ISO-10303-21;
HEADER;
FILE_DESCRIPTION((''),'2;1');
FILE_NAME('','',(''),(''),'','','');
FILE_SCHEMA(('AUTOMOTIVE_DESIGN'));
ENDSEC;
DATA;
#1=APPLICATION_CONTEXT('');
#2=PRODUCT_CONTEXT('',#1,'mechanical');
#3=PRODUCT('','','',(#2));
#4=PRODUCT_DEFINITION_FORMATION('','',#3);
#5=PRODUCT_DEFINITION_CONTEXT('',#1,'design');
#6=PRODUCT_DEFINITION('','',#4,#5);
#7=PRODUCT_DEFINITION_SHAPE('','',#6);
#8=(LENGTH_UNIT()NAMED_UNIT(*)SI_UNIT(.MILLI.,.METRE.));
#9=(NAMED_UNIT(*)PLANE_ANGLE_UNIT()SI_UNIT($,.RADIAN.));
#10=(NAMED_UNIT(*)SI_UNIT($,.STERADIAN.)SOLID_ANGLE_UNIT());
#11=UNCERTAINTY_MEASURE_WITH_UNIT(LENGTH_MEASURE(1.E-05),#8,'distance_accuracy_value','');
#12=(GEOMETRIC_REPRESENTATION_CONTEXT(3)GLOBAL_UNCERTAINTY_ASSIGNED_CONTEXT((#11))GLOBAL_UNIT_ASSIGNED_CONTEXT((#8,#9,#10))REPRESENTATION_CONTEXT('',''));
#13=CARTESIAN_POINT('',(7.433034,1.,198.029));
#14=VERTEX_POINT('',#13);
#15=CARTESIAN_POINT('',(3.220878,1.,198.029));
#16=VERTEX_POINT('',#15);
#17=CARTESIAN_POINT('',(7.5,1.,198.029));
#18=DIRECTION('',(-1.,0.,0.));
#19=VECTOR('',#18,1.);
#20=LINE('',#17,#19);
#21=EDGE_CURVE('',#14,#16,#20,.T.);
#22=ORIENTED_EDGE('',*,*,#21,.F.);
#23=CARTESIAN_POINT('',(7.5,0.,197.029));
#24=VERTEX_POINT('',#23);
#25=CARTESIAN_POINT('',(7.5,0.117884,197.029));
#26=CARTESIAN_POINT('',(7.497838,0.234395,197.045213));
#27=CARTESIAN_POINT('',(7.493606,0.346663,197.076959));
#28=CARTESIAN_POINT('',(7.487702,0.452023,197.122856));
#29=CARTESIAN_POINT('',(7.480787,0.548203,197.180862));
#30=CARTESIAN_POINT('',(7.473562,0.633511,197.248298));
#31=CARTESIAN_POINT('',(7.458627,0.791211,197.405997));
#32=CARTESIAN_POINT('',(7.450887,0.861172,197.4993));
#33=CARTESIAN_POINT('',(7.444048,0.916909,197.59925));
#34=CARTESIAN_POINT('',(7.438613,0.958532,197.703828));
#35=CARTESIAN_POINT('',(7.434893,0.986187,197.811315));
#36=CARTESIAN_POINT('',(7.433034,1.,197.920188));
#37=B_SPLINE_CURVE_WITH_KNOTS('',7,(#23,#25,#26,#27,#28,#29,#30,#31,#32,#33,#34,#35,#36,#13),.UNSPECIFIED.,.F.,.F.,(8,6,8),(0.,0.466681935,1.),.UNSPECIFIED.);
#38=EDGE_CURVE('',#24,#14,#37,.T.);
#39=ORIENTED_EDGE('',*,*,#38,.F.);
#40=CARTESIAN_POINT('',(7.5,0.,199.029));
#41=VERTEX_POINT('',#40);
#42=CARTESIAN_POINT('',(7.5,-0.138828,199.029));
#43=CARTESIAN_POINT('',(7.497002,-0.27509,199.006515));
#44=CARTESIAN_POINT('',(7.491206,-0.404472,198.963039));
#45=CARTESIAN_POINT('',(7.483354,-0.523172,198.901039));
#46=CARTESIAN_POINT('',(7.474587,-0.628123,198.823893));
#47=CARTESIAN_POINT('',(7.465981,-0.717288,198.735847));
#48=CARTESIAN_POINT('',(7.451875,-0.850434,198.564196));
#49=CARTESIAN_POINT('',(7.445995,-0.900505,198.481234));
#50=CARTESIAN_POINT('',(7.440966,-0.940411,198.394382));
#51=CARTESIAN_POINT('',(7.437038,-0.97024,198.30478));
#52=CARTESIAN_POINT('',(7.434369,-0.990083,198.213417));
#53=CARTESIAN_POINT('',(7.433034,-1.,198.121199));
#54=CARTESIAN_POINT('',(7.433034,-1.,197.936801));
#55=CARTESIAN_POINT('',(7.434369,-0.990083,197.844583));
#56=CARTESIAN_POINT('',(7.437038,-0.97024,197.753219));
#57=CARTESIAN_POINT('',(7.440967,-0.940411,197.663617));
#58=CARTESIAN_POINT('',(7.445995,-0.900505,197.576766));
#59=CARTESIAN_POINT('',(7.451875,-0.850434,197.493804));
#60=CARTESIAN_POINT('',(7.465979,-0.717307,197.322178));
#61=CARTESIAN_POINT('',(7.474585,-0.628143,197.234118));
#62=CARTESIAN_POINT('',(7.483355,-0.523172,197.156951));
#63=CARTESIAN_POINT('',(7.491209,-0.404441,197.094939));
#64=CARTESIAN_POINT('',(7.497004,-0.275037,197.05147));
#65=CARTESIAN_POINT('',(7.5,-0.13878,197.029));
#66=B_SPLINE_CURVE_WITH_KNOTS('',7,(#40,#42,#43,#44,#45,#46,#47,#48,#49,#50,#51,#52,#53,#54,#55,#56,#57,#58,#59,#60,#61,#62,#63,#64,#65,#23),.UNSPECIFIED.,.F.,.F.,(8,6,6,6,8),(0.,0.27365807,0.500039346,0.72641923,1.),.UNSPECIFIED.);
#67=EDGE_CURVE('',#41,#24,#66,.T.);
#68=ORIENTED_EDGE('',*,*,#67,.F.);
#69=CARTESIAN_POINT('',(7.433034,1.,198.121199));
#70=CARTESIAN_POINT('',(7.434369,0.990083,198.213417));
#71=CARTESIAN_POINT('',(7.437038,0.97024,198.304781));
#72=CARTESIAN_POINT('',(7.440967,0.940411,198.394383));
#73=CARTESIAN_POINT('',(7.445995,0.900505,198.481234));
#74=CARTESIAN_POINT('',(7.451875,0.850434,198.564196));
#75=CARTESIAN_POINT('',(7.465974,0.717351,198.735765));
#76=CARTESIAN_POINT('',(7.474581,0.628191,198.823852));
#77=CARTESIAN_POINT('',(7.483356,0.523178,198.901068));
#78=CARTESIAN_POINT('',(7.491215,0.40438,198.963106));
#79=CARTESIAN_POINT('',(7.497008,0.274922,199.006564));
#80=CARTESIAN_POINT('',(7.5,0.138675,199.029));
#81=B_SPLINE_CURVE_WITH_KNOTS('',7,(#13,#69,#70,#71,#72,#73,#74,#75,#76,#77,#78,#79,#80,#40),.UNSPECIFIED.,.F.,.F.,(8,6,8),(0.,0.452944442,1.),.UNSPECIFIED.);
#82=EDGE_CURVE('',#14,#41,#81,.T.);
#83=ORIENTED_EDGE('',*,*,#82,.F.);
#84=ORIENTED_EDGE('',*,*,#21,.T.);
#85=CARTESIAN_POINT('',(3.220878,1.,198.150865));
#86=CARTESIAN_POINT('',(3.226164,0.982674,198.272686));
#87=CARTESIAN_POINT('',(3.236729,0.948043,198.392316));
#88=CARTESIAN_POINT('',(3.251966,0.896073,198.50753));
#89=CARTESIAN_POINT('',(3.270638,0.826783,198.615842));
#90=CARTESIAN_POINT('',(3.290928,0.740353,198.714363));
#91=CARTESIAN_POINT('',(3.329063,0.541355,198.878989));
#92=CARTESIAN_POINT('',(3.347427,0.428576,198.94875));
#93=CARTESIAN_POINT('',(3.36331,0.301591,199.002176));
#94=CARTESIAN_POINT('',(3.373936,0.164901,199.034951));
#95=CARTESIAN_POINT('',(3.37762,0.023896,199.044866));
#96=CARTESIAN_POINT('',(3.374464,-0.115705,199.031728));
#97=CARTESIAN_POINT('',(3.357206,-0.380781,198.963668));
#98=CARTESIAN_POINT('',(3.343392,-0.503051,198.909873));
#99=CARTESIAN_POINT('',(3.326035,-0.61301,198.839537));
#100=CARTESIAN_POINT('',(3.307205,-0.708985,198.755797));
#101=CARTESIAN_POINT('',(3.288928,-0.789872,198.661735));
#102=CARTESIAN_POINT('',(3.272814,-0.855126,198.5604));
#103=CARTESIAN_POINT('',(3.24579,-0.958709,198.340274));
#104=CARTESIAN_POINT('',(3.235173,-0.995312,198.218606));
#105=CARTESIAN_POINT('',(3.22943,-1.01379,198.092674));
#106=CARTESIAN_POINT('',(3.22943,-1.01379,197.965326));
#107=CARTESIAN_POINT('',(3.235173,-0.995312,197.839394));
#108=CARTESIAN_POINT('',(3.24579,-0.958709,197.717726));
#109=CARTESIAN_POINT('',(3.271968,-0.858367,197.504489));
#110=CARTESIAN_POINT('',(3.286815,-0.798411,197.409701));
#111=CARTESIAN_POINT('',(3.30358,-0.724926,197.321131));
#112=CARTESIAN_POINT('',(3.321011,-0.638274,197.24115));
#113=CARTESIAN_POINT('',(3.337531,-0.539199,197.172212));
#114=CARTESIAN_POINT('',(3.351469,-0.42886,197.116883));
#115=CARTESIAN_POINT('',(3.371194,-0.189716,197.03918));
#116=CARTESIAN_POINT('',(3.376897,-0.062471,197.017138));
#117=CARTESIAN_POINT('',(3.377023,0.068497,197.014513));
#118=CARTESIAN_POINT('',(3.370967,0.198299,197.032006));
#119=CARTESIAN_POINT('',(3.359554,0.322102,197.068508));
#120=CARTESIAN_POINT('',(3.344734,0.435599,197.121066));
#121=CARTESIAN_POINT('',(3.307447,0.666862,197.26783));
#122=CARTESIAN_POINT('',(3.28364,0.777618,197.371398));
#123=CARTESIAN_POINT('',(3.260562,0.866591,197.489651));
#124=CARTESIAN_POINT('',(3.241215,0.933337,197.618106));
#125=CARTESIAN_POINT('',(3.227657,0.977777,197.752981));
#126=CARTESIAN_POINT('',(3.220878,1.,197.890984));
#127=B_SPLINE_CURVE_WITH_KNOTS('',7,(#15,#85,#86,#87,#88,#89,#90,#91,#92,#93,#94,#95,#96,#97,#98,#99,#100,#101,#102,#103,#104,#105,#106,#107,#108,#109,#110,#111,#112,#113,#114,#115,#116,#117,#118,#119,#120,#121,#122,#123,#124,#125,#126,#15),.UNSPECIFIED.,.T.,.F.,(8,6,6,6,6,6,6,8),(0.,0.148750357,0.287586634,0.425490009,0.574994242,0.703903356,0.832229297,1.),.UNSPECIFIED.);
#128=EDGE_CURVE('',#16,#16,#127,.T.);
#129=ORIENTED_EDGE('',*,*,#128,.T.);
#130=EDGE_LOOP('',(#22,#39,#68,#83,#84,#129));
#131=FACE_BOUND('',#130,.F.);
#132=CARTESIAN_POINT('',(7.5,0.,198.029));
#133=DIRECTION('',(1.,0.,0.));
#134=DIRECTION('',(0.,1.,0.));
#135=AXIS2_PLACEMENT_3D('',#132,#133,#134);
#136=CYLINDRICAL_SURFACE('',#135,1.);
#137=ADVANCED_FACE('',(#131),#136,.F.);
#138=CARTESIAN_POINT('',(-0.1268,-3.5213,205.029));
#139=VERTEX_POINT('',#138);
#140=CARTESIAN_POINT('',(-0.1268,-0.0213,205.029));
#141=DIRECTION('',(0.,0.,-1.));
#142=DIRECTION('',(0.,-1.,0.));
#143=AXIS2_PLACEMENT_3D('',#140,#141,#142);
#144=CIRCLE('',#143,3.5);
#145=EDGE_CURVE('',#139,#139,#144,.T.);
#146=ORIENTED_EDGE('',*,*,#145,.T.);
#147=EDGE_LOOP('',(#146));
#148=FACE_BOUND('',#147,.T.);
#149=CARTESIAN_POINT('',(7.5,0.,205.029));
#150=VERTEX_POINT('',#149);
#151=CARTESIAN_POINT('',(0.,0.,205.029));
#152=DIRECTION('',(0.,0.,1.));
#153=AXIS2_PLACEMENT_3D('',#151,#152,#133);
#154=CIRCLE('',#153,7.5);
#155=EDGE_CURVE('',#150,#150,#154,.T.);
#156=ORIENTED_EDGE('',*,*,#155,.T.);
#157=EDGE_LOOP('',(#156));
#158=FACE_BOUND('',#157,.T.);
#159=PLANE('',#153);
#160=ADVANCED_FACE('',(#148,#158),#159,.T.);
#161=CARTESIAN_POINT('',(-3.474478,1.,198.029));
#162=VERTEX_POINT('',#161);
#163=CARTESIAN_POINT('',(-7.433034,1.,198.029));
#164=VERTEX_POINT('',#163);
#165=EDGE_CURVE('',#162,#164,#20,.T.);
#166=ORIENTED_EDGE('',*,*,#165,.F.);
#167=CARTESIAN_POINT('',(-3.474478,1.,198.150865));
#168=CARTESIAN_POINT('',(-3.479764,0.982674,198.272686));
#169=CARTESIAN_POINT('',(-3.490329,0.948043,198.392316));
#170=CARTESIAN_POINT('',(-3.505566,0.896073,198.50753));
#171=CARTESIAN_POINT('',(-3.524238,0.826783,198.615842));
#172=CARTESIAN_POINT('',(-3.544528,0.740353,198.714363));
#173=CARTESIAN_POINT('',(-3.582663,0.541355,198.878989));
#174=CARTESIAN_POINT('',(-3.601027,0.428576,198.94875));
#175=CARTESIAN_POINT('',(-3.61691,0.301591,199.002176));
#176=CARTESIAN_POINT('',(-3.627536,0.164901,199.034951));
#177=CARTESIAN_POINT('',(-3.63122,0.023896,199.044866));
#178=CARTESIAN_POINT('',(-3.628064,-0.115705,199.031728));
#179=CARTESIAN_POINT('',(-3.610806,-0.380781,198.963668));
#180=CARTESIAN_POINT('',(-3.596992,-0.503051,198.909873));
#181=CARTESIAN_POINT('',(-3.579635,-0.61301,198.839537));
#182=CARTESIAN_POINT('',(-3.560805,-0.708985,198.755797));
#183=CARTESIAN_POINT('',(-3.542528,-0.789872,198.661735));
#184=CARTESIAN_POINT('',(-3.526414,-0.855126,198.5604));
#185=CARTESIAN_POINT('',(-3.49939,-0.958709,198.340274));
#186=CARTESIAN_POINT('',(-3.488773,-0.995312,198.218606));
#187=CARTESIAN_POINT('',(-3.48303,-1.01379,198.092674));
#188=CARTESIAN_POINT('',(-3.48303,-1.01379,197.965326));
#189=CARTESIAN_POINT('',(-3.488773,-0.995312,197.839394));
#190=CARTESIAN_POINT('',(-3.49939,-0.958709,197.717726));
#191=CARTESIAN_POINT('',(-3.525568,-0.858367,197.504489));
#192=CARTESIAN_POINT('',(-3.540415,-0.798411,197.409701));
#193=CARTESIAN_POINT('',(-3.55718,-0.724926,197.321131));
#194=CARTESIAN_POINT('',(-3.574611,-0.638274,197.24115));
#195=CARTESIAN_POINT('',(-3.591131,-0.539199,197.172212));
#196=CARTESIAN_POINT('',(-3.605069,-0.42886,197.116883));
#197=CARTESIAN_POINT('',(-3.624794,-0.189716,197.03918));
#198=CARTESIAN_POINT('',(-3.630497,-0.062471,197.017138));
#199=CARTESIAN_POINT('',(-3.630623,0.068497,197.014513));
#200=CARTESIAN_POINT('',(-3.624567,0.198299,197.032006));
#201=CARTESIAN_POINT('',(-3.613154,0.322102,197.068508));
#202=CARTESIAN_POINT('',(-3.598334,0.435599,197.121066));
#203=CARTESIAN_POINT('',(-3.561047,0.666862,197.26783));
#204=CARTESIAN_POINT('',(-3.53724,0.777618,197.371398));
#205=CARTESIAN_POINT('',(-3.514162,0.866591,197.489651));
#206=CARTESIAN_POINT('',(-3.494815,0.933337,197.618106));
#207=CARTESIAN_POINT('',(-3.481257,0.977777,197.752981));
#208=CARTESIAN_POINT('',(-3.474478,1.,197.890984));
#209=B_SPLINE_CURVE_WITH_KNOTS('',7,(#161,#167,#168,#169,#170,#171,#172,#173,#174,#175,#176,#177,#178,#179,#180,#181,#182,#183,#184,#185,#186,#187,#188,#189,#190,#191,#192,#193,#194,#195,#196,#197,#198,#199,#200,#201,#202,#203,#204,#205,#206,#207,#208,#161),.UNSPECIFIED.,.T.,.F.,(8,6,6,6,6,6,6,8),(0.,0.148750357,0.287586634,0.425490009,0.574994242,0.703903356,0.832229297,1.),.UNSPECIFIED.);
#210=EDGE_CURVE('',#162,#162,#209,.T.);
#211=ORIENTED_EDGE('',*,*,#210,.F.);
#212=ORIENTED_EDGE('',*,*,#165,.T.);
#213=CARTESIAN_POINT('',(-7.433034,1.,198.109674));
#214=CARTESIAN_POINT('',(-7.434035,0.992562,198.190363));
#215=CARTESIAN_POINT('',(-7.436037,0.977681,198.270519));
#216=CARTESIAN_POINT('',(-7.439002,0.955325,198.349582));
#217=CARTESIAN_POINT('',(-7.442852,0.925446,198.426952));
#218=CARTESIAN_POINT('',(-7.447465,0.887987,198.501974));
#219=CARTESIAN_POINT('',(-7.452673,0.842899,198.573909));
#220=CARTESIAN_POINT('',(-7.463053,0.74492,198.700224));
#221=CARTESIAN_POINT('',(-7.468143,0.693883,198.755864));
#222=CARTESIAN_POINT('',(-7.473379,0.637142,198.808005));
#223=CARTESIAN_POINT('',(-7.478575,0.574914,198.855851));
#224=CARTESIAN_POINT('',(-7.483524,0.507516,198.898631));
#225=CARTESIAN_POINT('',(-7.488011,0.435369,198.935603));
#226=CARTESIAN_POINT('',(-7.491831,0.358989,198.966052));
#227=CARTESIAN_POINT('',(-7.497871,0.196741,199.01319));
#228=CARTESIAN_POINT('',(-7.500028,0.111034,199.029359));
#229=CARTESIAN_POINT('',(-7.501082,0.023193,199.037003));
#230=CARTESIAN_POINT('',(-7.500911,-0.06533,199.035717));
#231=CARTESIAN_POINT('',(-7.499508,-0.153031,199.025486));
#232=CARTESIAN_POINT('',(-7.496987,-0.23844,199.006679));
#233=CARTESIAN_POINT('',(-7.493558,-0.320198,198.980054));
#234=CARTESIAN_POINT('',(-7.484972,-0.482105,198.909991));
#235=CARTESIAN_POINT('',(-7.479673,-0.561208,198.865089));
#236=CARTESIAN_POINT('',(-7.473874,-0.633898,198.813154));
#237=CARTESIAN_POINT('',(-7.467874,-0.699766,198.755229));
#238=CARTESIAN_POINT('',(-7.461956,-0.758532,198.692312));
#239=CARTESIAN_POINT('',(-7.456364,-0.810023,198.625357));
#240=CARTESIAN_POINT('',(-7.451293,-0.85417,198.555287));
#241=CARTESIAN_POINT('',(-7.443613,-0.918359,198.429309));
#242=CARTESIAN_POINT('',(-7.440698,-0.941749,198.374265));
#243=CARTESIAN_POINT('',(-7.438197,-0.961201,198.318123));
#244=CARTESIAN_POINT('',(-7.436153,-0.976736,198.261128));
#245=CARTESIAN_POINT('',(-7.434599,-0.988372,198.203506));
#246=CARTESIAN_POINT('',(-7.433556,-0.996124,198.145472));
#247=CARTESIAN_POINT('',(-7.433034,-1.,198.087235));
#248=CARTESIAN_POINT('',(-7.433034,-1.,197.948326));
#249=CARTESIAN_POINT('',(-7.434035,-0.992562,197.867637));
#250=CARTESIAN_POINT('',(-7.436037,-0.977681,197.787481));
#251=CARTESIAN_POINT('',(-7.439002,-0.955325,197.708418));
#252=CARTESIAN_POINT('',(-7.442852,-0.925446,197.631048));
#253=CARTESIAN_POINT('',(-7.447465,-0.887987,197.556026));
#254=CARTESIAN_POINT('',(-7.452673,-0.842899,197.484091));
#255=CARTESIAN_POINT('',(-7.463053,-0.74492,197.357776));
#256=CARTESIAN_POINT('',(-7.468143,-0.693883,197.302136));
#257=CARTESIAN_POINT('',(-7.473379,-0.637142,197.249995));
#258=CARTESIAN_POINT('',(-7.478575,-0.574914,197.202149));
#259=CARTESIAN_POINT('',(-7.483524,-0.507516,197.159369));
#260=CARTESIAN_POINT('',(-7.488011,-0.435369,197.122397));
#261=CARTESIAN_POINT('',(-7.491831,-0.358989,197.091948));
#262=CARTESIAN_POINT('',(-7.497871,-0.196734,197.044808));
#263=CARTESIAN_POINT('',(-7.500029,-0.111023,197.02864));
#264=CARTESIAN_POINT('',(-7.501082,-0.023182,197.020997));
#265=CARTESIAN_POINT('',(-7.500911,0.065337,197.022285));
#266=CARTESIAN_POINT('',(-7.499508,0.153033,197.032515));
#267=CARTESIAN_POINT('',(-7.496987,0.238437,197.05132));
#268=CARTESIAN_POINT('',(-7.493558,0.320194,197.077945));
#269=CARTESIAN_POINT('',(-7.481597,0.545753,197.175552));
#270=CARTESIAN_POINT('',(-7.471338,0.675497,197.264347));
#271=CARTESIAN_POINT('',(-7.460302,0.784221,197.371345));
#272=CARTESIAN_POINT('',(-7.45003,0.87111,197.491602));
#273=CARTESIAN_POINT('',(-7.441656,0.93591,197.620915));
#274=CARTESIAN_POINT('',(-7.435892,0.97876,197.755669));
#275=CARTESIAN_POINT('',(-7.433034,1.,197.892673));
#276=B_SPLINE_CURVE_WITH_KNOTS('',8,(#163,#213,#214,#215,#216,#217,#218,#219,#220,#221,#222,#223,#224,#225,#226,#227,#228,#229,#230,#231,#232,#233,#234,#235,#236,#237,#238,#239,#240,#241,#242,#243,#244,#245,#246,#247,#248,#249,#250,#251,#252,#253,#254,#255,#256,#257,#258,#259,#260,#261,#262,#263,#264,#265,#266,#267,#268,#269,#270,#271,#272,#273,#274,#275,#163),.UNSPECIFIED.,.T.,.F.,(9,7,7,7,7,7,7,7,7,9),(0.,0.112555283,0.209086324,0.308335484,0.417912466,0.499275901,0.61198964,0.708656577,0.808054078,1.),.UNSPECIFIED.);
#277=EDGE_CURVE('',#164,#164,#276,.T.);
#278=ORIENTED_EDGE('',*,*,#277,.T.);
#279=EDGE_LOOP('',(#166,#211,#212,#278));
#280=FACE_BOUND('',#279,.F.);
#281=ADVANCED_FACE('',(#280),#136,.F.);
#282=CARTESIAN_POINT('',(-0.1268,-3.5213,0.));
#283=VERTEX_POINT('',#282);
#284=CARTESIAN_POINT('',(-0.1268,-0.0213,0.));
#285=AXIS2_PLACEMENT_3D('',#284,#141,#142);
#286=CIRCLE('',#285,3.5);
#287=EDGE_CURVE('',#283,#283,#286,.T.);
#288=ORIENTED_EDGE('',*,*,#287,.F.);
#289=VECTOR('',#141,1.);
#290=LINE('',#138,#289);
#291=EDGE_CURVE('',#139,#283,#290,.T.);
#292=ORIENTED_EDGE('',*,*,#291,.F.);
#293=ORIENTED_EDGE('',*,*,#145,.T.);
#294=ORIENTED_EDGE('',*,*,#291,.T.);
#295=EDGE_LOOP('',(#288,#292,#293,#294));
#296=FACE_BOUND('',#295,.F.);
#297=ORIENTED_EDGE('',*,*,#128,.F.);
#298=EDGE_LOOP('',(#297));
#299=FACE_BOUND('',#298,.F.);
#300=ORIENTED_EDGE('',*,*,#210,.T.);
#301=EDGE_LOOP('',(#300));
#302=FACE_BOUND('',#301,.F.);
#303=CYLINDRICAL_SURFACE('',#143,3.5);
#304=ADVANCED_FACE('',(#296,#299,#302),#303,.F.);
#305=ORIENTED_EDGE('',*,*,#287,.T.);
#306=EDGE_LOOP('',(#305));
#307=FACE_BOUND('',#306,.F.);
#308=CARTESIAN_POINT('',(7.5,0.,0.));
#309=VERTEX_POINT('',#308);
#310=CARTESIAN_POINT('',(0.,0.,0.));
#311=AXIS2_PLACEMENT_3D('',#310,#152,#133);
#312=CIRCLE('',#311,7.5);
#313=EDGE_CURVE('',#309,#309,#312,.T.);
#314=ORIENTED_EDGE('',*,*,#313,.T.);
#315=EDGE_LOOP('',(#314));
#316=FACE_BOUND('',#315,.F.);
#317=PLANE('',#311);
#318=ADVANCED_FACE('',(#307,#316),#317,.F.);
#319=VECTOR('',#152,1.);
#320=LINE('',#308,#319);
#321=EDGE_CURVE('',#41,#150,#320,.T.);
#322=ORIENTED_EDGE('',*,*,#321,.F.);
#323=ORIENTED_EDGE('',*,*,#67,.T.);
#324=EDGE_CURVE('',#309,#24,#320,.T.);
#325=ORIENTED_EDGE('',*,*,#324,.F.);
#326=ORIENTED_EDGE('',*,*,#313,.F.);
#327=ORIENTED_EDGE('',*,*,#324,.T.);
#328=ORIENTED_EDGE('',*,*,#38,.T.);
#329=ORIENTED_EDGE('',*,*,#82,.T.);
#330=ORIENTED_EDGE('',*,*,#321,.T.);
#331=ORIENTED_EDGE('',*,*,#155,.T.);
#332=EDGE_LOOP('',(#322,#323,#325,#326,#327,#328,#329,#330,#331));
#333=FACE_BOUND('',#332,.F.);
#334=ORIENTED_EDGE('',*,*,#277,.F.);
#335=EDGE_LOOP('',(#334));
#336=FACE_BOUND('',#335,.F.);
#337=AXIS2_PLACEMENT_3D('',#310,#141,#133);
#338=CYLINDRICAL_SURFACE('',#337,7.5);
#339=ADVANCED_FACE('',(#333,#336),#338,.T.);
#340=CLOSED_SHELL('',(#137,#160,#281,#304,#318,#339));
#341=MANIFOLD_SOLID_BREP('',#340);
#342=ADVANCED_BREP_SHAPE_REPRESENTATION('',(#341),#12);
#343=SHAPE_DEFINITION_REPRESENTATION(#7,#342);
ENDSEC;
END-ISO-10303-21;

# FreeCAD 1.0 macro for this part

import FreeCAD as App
import Part
import Sketcher

doc = App.newDocument("Part")
body = doc.addObject("PartDesign::Body", "Body")

# Sketch on XY plane
sketch1 = body.newObject("Sketcher::SketchObject", "Sketch")
sketch1.AttachmentSupport = (doc.getObject("XY_Plane"), [""])
sketch1.MapMode = "FlatFace"
sketch1.addGeometry(Part.Circle(App.Vector(0, 0, 0), App.Vector(0, 0, 1), 8), False)
sketch1.addConstraint(Sketcher.Constraint("Coincident", 0, 3, -1, 1))
sketch1.addConstraint(Sketcher.Constraint("Diameter", 0, 15.0))
pad1 = body.newObject("PartDesign::Pad", "Pad")
pad1.Profile = sketch1
pad1.Length = 205.029

# Sketch on XY plane
sketch2 = body.newObject("Sketcher::SketchObject", "Sketch001")
sketch2.AttachmentSupport = (doc.getObject("XY_Plane"), [""])
sketch2.MapMode = "FlatFace"
sketch2.AttachmentOffset = App.Placement(App.Vector(0, 0, 205.029), App.Rotation())
sketch2.addGeometry(Part.Circle(App.Vector(-0.1, 0, 0), App.Vector(0, 0, 1), 3.5), False)
sketch2.addConstraint(Sketcher.Constraint("Diameter", 0, 7.0))
sketch2.addConstraint(Sketcher.Constraint("DistanceX", 0, 3, -1, 1, 0.1268))
sketch2.addConstraint(Sketcher.Constraint("DistanceY", 0, 3, -1, 1, 0.0213))
doc.recompute()
hole = body.newObject("PartDesign::Hole", "Hole")
hole.Profile = sketch2
hole.ThreadType = "None"
hole.Diameter = 7
hole.DepthType = "ThroughAll"

# Sketch on YZ plane
sketch3 = body.newObject("Sketcher::SketchObject", "Sketch002")
sketch3.AttachmentSupport = (doc.getObject("YZ_Plane"), [""])
sketch3.MapMode = "FlatFace"
sketch3.AttachmentOffset = App.Placement(App.Vector(0, 0, 7.5), App.Rotation())
sketch3.addGeometry(Part.Circle(App.Vector(0, 198, 0), App.Vector(0, 0, 1), 1), False)
sketch3.addConstraint(Sketcher.Constraint("PointOnObject", 0, 3, -2))
sketch3.addConstraint(Sketcher.Constraint("Diameter", 0, 2.0))
sketch3.addConstraint(Sketcher.Constraint("DistanceY", -1, 1, 0, 3, 198.029))
pocket1 = body.newObject("PartDesign::Pocket", "Pocket")
pocket1.Profile = sketch3
pocket1.Type = "ThroughAll"

doc.recompute()
